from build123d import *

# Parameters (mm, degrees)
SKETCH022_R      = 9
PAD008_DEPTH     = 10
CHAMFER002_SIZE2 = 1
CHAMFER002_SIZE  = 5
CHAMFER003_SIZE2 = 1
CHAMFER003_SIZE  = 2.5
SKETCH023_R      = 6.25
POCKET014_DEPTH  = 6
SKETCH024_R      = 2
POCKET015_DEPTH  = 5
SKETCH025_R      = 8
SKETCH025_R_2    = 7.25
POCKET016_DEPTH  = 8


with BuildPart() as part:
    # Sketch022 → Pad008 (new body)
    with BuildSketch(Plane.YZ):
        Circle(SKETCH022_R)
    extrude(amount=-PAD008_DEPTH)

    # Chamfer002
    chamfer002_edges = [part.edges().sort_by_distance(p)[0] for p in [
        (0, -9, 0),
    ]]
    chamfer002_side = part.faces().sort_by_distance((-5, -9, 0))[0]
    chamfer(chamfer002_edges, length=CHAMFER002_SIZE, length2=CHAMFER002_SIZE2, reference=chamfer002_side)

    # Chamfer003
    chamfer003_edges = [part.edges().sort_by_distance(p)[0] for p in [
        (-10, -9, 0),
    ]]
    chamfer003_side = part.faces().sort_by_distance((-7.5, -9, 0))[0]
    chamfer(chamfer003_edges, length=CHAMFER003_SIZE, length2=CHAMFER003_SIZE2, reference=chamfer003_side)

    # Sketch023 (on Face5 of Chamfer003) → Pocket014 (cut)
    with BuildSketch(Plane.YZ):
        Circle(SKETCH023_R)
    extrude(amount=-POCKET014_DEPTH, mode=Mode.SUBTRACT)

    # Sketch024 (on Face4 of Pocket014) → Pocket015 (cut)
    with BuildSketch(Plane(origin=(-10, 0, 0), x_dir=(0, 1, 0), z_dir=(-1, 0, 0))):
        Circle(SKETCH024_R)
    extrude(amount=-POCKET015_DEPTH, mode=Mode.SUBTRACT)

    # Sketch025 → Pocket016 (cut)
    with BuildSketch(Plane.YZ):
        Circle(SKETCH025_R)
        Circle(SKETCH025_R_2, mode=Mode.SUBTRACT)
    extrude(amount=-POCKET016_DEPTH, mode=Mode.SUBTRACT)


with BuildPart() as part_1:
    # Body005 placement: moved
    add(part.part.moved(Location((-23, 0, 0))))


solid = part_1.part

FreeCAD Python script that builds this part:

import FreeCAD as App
import Part
import Sketcher
Q = App.Units.Quantity


def edges_at(feature, points):
    """Names of the edges that pass closest to the given points."""
    edges = feature.Shape.Edges
    near = lambda p: min(range(len(edges)), key=lambda i: edges[i].distToShape(Part.Vertex(*p))[0])
    return sorted({f"Edge{near(p) + 1}" for p in points})

doc = App.newDocument("Part")
body = doc.addObject("PartDesign::Body", "Body")

# Sketch on YZ plane
sketch1 = body.newObject("Sketcher::SketchObject", "Sketch")
sketch1.AttachmentSupport = (doc.getObject("YZ_Plane"), [""])
sketch1.MapMode = "FlatFace"
sketch1.addGeometry(Part.Circle(App.Vector(0, 0, 0), App.Vector(0, 0, 1), 9), False)
sketch1.addConstraint([
    Sketcher.Constraint("Coincident", 0, 3, -1, 1),
    Sketcher.Constraint("Diameter", 0, Q("18 mm")),
])
pad1 = body.newObject("PartDesign::Pad", "Pad")
pad1.Profile = sketch1
pad1.Length = 10
pad1.Reversed = True
doc.recompute()

chamfer = body.newObject("PartDesign::Chamfer", "Chamfer")
chamfer.Base = (pad1, edges_at(pad1, [(0, -9, 0)]))
chamfer.ChamferType = "Two distances"
chamfer.Size = 5
chamfer.Size2 = 1
doc.recompute()

chamfer2 = body.newObject("PartDesign::Chamfer", "Chamfer001")
chamfer2.Base = (chamfer, edges_at(chamfer, [(-10, -9, 0)]))
chamfer2.ChamferType = "Two distances"
chamfer2.Size = 2.5
chamfer2.Size2 = 1

# Sketch on YZ plane
sketch2 = body.newObject("Sketcher::SketchObject", "Sketch001")
sketch2.AttachmentSupport = (doc.getObject("YZ_Plane"), [""])
sketch2.MapMode = "FlatFace"
sketch2.addGeometry(Part.Circle(App.Vector(0, 0, 0), App.Vector(0, 0, 1), 6.25), False)
sketch2.addConstraint([
    Sketcher.Constraint("Coincident", 0, 3, -1, 1),
    Sketcher.Constraint("Diameter", 0, Q("12.5 mm")),
])
pocket1 = body.newObject("PartDesign::Pocket", "Pocket")
pocket1.Profile = sketch2
pocket1.Length = 6

# Sketch on YZ plane
sketch3 = body.newObject("Sketcher::SketchObject", "Sketch002")
sketch3.AttachmentSupport = (doc.getObject("YZ_Plane"), [""])
sketch3.MapMode = "FlatFace"
sketch3.AttachmentOffset = App.Placement(App.Vector(0, 0, -10), App.Rotation())
sketch3.addGeometry(Part.Circle(App.Vector(0, 0, 0), App.Vector(0, 0, 1), 2), False)
sketch3.addConstraint([
    Sketcher.Constraint("Coincident", 0, 3, -1, 1),
    Sketcher.Constraint("Diameter", 0, Q("4 mm")),
])
pocket2 = body.newObject("PartDesign::Pocket", "Pocket001")
pocket2.Profile = sketch3
pocket2.Length = 5
pocket2.Reversed = True

# Sketch on YZ plane
sketch4 = body.newObject("Sketcher::SketchObject", "Sketch003")
sketch4.AttachmentSupport = (doc.getObject("YZ_Plane"), [""])
sketch4.MapMode = "FlatFace"
sketch4.addGeometry([
    Part.Circle(App.Vector(0, 0, 0), App.Vector(0, 0, 1), 8),
    Part.Circle(App.Vector(0, 0, 0), App.Vector(0, 0, 1), 7.25),
], False)
sketch4.addConstraint([
    Sketcher.Constraint("Coincident", 0, 3, -1, 1),
    Sketcher.Constraint("Coincident", 1, 3, -1, 1),
    Sketcher.Constraint("Diameter", 0, Q("16 mm")),
    Sketcher.Constraint("Diameter", 1, Q("14.5 mm")),
])
pocket3 = body.newObject("PartDesign::Pocket", "Pocket002")
pocket3.Profile = sketch4
pocket3.Length = 8
body2 = doc.addObject("PartDesign::Body", "Body001")
doc.recompute()

body.Placement = App.Placement(App.Vector(-23, 0, 0), App.Rotation(App.Vector(0, 0, 1), 0))
boolean = body2.newObject("PartDesign::Boolean", "Boolean")
boolean.Type = "Fuse"
boolean.addObjects([body])

doc.recompute()
